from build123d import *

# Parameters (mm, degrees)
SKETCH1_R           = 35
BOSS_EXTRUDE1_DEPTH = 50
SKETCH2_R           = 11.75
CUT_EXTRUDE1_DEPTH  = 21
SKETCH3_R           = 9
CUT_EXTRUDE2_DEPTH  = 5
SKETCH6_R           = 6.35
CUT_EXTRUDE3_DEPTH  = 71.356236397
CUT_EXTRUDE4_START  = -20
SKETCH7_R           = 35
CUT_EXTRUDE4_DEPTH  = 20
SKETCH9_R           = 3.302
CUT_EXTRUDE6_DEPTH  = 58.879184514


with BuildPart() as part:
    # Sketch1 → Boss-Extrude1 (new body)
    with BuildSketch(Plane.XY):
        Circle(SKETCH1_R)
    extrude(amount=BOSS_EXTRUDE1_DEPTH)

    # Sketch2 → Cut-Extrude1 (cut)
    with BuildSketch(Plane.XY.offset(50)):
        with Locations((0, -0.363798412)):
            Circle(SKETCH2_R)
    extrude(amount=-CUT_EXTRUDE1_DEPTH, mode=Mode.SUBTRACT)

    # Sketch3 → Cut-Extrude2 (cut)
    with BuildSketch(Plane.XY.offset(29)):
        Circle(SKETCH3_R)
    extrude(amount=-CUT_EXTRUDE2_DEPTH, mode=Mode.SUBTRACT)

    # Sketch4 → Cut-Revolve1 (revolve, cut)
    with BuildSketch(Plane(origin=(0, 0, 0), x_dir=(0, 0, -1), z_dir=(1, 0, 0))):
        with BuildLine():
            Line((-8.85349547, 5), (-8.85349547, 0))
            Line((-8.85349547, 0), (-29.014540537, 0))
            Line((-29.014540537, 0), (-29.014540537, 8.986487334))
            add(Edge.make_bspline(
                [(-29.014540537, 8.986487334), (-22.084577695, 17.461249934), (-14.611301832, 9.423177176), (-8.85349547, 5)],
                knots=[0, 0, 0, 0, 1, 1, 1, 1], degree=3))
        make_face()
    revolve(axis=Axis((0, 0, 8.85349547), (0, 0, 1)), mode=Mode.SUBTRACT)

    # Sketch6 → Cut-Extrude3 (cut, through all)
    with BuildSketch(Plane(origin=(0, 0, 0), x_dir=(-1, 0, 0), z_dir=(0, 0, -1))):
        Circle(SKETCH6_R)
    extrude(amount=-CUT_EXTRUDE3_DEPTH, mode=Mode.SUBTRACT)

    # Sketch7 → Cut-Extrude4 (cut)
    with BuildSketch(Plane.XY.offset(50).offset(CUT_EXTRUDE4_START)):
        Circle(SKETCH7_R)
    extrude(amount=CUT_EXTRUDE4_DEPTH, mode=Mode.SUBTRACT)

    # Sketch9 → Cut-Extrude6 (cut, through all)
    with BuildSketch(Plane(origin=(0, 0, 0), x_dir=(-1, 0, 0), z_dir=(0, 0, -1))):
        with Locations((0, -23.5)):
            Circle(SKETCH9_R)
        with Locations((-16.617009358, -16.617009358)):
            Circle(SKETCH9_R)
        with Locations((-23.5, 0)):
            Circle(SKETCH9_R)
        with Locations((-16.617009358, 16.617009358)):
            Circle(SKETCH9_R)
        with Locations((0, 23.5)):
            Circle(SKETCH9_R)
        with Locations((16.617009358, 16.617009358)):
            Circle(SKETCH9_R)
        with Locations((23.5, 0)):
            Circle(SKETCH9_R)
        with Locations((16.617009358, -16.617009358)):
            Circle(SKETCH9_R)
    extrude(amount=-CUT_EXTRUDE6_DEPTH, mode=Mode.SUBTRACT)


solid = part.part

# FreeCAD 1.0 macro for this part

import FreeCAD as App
import Part
import Sketcher
from FreeCAD import Vector

doc = App.newDocument("Part")
params = doc.addObject("Spreadsheet::Sheet", "Params")
for row, (alias, value) in enumerate([
    ("sketch1_diameter", "70 mm"),
    ("pad1_length", "50 mm"),
    ("sketch2_diameter", "23.5 mm"),
    ("pocket1_length", "21 mm"),
    ("sketch3_diameter", "18 mm"),
    ("pocket2_length", "5 mm"),
    ("groove_angle", "360 deg"),
    ("sketch5_diameter", "12.7 mm"),
    ("sketch6_diameter", "70 mm"),
    ("pocket4_length", "20 mm"),
], start=1):
    params.set(f"A{row}", alias)
    params.set(f"B{row}", "=" + value)
    params.setAlias(f"B{row}", alias)

body = doc.addObject("PartDesign::Body", "Body")

# Sketch on XY plane
sketch1 = body.newObject("Sketcher::SketchObject", "Sketch")
sketch1.AttachmentSupport = (doc.getObject("XY_Plane"), [""])
sketch1.MapMode = "FlatFace"
sketch1.addGeometry(Part.Circle(Vector(0, 0, 0), Vector(0, 0, 1), 35), False)
sketch1.addConstraint([
    Sketcher.Constraint("Coincident", 0, 3, -1, 1),
    Sketcher.Constraint("Diameter", 0, 70.0),
])
sketch1.setExpression("Constraints[1]", "Params.sketch1_diameter")
pad1 = body.newObject("PartDesign::Pad", "Pad")
pad1.Profile = sketch1
pad1.setExpression("Length", "Params.pad1_length")

# Sketch on XY plane
sketch2 = body.newObject("Sketcher::SketchObject", "Sketch001")
sketch2.AttachmentSupport = (doc.getObject("XY_Plane"), [""])
sketch2.MapMode = "FlatFace"
sketch2.AttachmentOffset = App.Placement(Vector(0, 0, 50), App.Rotation())
sketch2.addGeometry(Part.Circle(Vector(0, -0.363798, 0), Vector(0, 0, 1), 11.75), False)
sketch2.addConstraint([
    Sketcher.Constraint("PointOnObject", 0, 3, -2),
    Sketcher.Constraint("Diameter", 0, 23.5),
    Sketcher.Constraint("DistanceY", 0, 3, -1, 1, 0.363798),
])
sketch2.setExpression("Constraints[1]", "Params.sketch2_diameter")
pocket1 = body.newObject("PartDesign::Pocket", "Pocket")
pocket1.Profile = sketch2
pocket1.setExpression("Length", "Params.pocket1_length")

# Sketch on XY plane
sketch3 = body.newObject("Sketcher::SketchObject", "Sketch002")
sketch3.AttachmentSupport = (doc.getObject("XY_Plane"), [""])
sketch3.MapMode = "FlatFace"
sketch3.AttachmentOffset = App.Placement(Vector(0, 0, 29), App.Rotation())
sketch3.addGeometry(Part.Circle(Vector(0, 0, 0), Vector(0, 0, 1), 9), False)
sketch3.addConstraint([
    Sketcher.Constraint("Coincident", 0, 3, -1, 1),
    Sketcher.Constraint("Diameter", 0, 18.0),
])
sketch3.setExpression("Constraints[1]", "Params.sketch3_diameter")
pocket2 = body.newObject("PartDesign::Pocket", "Pocket001")
pocket2.Profile = sketch3
pocket2.setExpression("Length", "Params.pocket2_length")

# Sketch on YZ plane
sketch4 = body.newObject("Sketcher::SketchObject", "Sketch003")
sketch4.AttachmentSupport = (doc.getObject("YZ_Plane"), [""])
sketch4.MapMode = "FlatFace"
sketch4.addGeometry([
    Part.LineSegment(Vector(0, 8.853495, 0), Vector(5, 8.853495, 0)),
    Part.BSplineCurve([Vector(8.986487, 29.014541, 0), Vector(17.46125, 22.084578, 0), Vector(9.423177, 14.611302, 0), Vector(5, 8.853495, 0)], [4, 4], [0, 1], False, 3, [1, 1, 1, 1], False),
    Part.LineSegment(Vector(8.986487, 29.014541, 0), Vector(0, 29.014541, 0)),
    Part.LineSegment(Vector(0, 29.014541, 0), Vector(0, 8.853495, 0)),
], False)
sketch4.addConstraint([
    Sketcher.Constraint("Block", 1),
    Sketcher.Constraint("Coincident", 0, 2, 1, 2),
    Sketcher.Constraint("Coincident", 1, 1, 2, 1),
    Sketcher.Constraint("Coincident", 2, 2, 3, 1),
    Sketcher.Constraint("Coincident", 3, 2, 0, 1),
    Sketcher.Constraint("Horizontal", 0),
    Sketcher.Constraint("Horizontal", 2),
    Sketcher.Constraint("Vertical", 3),
    Sketcher.Constraint("PointOnObject", 2, 2, -2),
])
groove = body.newObject("PartDesign::Groove", "Groove")
groove.Profile = sketch4
groove.ReferenceAxis = (sketch4, ["V_Axis"])
groove.setExpression("Angle", "Params.groove_angle")

# Sketch on XY plane
sketch5 = body.newObject("Sketcher::SketchObject", "Sketch004")
sketch5.AttachmentSupport = (doc.getObject("XY_Plane"), [""])
sketch5.MapMode = "FlatFace"
sketch5.addGeometry(Part.Circle(Vector(0, 0, 0), Vector(0, 0, 1), 6.35), False)
sketch5.addConstraint([
    Sketcher.Constraint("Coincident", 0, 3, -1, 1),
    Sketcher.Constraint("Diameter", 0, 12.7),
])
sketch5.setExpression("Constraints[1]", "Params.sketch5_diameter")
pocket3 = body.newObject("PartDesign::Pocket", "Pocket002")
pocket3.Profile = sketch5
pocket3.Type = "ThroughAll"
pocket3.Reversed = True

# Sketch on XY plane
sketch6 = body.newObject("Sketcher::SketchObject", "Sketch005")
sketch6.AttachmentSupport = (doc.getObject("XY_Plane"), [""])
sketch6.MapMode = "FlatFace"
sketch6.AttachmentOffset = App.Placement(Vector(0, 0, 30), App.Rotation())
sketch6.addGeometry(Part.Circle(Vector(0, 0, 0), Vector(0, 0, 1), 35), False)
sketch6.addConstraint([
    Sketcher.Constraint("Coincident", 0, 3, -1, 1),
    Sketcher.Constraint("Diameter", 0, 70.0),
])
sketch6.setExpression("Constraints[1]", "Params.sketch6_diameter")
pocket4 = body.newObject("PartDesign::Pocket", "Pocket003")
pocket4.Profile = sketch6
pocket4.setExpression("Length", "Params.pocket4_length")
pocket4.Reversed = True

# Sketch on XY plane
sketch7 = body.newObject("Sketcher::SketchObject", "Sketch006")
sketch7.AttachmentSupport = (doc.getObject("XY_Plane"), [""])
sketch7.MapMode = "FlatFace"
sketch7.addGeometry([
    Part.Circle(Vector(0, -23.5, 0), Vector(0, 0, 1), 3.302),  # 0
    Part.Circle(Vector(16.617009, -16.617009, 0), Vector(0, 0, 1), 3.302),  # 1
    Part.Circle(Vector(23.5, 0, 0), Vector(0, 0, 1), 3.302),  # 2
    Part.Circle(Vector(16.617009, 16.617009, 0), Vector(0, 0, 1), 3.302),  # 3
    Part.Circle(Vector(0, 23.5, 0), Vector(0, 0, 1), 3.302),  # 4
    Part.Circle(Vector(-16.617009, 16.617009, 0), Vector(0, 0, 1), 3.302),  # 5
    Part.Circle(Vector(-23.5, 0, 0), Vector(0, 0, 1), 3.302),  # 6
    Part.Circle(Vector(-16.617009, -16.617009, 0), Vector(0, 0, 1), 3.302),  # 7
], False)
sketch7.addConstraint([
    Sketcher.Constraint("Equal", 0, 1),
    Sketcher.Constraint("Equal", 1, 2),
    Sketcher.Constraint("Equal", 2, 3),
    Sketcher.Constraint("Equal", 3, 4),
    Sketcher.Constraint("Equal", 4, 5),
    Sketcher.Constraint("Equal", 5, 6),
    Sketcher.Constraint("Equal", 6, 7),
    Sketcher.Constraint("Symmetric", 0, 3, 4, 3, -1, 1),
    Sketcher.Constraint("Symmetric", 1, 3, 5, 3, -1, 1),
    Sketcher.Constraint("Symmetric", 2, 3, 6, 3, -1, 1),
    Sketcher.Constraint("Symmetric", 3, 3, 7, 3, -1, 1),
    Sketcher.Constraint("Symmetric", 3, 3, 5, 3, -2),
    Sketcher.Constraint("PointOnObject", 0, 3, -2),
    Sketcher.Constraint("PointOnObject", 2, 3, -1),
    Sketcher.Constraint("Diameter", 0, 6.604),
    Sketcher.Constraint("DistanceY", 0, 3, 4, 3, 47.0),
    Sketcher.Constraint("DistanceX", -1, 1, 2, 3, 23.5),
    Sketcher.Constraint("DistanceX", -1, 1, 1, 3, 16.617009),
    Sketcher.Constraint("DistanceY", 1, 3, -1, 1, 16.617009),
])
pocket5 = body.newObject("PartDesign::Pocket", "Pocket004")
pocket5.Profile = sketch7
pocket5.Type = "ThroughAll"
pocket5.Reversed = True

doc.recompute()
